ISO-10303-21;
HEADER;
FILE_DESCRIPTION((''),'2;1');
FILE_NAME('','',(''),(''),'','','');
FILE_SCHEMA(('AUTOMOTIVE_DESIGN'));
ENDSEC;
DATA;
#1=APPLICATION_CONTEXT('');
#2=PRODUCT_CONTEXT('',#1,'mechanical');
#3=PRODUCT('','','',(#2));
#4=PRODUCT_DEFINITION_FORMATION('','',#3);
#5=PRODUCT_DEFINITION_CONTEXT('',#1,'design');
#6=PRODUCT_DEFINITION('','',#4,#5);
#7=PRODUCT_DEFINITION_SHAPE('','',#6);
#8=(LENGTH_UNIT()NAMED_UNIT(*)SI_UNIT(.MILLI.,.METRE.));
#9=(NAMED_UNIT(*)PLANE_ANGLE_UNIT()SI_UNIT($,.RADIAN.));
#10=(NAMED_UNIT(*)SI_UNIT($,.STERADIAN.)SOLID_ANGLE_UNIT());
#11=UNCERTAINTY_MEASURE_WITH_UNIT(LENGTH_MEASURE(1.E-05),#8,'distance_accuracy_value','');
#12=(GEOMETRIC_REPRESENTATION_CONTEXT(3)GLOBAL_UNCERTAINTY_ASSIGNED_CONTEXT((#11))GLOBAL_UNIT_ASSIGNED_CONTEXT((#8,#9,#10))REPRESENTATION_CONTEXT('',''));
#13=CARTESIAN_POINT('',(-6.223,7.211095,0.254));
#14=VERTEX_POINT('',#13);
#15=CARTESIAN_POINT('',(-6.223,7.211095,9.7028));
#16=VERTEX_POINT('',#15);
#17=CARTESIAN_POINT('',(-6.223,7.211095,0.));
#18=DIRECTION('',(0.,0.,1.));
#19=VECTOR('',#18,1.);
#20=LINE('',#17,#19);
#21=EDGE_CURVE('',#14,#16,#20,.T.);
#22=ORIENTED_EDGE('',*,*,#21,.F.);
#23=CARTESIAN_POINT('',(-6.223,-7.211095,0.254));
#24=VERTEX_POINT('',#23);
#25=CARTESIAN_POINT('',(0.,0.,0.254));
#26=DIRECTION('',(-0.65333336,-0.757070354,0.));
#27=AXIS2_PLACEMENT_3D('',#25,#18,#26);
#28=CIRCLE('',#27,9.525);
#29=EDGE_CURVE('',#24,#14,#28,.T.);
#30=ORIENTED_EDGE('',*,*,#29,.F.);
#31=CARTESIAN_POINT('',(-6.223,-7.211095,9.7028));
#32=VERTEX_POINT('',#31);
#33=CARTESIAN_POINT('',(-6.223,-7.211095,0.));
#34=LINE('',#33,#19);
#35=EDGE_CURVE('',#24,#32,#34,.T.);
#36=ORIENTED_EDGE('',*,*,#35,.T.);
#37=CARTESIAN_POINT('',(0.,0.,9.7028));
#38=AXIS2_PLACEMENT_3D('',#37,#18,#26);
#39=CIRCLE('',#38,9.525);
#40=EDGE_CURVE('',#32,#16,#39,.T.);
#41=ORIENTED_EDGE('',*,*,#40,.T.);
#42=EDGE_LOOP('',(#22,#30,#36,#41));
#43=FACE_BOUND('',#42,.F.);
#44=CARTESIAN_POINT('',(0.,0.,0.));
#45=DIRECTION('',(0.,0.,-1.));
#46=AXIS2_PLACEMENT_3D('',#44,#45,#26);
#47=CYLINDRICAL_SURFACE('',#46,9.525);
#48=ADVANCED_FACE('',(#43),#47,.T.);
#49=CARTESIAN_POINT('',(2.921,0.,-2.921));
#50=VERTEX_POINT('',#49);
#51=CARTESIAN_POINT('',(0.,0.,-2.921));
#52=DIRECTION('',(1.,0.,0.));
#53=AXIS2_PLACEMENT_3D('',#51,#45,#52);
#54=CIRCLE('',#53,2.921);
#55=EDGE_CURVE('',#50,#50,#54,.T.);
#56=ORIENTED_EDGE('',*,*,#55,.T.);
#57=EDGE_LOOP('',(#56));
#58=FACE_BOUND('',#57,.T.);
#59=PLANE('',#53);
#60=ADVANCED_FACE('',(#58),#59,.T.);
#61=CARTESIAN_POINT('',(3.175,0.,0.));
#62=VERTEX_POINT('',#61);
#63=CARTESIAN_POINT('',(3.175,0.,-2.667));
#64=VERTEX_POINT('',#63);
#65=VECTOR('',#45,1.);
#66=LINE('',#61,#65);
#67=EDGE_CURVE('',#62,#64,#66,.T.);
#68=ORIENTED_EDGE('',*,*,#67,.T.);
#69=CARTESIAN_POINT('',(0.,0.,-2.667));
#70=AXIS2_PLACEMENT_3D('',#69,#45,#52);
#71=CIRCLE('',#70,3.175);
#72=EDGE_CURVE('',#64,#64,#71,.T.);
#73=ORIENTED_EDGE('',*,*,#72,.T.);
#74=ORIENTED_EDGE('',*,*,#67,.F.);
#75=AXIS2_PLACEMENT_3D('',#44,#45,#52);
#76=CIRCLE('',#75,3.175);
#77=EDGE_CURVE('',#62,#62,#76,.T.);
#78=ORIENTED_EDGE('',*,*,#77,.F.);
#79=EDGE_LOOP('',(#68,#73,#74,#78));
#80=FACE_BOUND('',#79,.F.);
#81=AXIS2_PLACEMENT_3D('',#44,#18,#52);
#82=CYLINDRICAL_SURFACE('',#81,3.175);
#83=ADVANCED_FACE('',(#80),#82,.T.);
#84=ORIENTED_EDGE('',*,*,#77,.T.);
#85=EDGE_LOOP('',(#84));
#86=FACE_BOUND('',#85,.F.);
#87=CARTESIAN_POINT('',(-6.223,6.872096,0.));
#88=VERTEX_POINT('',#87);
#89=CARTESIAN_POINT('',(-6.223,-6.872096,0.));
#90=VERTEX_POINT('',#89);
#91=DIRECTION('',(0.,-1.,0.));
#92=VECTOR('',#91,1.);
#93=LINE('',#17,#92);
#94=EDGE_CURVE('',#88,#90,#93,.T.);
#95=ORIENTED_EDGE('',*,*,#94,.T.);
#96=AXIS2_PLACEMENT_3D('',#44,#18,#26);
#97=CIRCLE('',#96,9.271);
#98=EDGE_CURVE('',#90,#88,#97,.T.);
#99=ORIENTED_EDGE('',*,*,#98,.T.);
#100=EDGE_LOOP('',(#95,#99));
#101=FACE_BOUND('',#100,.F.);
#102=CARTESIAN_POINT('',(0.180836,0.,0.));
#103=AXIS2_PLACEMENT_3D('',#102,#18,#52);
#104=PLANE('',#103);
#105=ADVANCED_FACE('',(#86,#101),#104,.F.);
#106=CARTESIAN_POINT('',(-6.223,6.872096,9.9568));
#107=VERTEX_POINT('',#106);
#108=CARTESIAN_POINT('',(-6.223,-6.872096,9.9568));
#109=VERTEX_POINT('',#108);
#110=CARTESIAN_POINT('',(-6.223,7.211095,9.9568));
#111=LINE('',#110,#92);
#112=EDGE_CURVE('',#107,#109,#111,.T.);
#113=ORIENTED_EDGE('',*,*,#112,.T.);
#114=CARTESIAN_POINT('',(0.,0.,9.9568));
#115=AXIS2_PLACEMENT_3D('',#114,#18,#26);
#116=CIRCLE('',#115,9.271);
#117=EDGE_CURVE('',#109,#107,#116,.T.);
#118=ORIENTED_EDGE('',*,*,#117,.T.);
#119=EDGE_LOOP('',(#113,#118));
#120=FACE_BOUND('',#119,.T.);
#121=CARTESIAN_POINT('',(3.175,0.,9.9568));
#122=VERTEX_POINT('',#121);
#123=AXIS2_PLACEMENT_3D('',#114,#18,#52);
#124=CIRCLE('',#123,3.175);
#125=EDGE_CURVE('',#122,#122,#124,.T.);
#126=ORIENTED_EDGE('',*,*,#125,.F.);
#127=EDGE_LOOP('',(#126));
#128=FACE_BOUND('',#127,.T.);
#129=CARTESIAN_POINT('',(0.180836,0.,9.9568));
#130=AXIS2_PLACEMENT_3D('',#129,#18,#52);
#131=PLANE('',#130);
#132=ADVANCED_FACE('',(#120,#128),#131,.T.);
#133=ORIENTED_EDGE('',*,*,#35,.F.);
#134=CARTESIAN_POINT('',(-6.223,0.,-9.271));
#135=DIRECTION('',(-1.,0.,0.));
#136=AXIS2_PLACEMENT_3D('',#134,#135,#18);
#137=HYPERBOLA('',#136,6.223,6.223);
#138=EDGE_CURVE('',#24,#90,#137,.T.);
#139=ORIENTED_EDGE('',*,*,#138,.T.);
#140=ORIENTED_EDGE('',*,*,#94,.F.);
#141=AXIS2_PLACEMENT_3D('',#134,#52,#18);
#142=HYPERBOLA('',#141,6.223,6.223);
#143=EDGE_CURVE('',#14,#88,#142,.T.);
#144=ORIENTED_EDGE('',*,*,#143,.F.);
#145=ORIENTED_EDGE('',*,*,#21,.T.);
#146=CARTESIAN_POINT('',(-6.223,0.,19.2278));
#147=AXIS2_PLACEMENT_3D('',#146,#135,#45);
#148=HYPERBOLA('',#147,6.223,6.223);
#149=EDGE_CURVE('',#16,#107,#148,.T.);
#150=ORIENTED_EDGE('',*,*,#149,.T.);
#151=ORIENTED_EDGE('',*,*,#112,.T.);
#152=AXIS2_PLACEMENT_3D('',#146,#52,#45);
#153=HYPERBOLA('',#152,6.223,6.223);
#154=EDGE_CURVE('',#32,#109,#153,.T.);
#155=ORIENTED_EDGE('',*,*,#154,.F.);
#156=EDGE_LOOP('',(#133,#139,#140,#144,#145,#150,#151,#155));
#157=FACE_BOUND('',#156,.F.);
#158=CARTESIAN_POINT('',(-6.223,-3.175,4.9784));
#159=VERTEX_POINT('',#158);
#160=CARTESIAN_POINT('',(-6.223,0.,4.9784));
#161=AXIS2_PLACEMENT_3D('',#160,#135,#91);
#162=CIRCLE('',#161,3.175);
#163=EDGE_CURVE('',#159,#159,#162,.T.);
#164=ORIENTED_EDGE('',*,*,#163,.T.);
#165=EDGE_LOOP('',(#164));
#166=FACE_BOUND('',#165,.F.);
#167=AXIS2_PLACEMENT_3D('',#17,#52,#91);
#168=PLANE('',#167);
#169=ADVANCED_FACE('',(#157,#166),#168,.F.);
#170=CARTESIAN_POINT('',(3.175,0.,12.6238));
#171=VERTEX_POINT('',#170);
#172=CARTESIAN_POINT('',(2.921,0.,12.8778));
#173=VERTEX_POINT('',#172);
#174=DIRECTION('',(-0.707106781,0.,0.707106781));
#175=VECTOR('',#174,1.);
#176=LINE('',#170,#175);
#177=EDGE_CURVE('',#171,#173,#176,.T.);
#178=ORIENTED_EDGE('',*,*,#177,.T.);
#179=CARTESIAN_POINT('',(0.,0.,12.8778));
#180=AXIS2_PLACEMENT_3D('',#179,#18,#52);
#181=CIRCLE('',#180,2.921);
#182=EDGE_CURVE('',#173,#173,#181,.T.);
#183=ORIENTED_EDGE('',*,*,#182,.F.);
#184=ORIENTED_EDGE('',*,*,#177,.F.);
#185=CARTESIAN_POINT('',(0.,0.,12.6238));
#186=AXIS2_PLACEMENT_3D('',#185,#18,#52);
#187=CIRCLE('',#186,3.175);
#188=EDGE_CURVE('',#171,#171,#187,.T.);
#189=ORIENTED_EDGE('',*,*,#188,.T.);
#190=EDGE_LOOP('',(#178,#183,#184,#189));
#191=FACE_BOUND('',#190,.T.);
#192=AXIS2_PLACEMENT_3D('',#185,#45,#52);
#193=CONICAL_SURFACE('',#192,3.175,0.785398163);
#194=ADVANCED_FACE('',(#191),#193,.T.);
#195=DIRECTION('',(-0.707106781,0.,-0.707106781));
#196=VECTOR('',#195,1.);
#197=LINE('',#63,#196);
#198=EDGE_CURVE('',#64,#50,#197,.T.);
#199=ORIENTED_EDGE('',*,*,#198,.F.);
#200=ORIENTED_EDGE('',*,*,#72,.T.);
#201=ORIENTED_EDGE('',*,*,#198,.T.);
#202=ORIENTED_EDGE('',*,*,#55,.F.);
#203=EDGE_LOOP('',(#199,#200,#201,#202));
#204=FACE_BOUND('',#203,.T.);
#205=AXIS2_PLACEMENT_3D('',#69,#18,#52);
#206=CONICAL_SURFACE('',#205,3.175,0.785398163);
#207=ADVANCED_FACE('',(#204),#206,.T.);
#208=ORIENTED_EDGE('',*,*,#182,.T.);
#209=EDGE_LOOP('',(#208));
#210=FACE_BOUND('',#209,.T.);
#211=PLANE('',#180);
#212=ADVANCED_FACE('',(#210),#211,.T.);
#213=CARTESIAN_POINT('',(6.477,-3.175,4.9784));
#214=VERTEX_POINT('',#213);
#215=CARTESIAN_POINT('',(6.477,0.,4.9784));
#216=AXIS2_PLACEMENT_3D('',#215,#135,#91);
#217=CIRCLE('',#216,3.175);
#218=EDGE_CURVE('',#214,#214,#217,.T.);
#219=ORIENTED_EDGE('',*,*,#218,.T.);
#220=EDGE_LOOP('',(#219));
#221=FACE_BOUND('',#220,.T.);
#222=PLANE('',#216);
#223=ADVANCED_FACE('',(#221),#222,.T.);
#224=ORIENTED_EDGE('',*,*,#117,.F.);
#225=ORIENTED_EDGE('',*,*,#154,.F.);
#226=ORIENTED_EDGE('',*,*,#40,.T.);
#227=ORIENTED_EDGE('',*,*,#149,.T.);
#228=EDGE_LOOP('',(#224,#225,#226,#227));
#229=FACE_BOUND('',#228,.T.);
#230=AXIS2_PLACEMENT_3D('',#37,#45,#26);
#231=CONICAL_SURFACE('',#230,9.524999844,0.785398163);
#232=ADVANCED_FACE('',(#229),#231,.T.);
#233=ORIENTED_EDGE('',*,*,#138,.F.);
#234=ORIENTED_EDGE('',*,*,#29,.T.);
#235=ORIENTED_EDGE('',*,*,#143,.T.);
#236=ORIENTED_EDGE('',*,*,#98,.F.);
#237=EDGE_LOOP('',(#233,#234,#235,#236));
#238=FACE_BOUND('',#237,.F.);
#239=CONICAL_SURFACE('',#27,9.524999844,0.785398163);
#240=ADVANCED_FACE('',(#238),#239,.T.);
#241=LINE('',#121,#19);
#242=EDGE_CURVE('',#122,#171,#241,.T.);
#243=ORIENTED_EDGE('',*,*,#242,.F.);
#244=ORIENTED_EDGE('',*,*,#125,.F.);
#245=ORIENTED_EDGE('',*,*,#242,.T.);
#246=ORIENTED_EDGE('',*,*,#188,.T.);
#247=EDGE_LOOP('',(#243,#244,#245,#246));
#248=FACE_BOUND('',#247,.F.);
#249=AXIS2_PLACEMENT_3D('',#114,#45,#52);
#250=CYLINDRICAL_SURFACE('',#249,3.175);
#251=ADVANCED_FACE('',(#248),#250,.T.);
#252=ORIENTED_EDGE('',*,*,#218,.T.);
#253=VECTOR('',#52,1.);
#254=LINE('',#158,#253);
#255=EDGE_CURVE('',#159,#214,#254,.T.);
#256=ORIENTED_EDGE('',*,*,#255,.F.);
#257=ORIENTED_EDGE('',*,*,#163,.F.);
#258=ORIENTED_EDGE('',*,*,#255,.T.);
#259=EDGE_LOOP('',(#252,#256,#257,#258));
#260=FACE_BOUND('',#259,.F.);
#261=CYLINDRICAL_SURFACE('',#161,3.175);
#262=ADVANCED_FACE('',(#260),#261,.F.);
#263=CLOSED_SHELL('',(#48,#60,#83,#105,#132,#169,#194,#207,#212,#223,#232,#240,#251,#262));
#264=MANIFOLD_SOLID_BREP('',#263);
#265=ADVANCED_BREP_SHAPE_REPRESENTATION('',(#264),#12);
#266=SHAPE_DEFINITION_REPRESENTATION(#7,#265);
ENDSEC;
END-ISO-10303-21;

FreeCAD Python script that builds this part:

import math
import FreeCAD as App
import Part
import Sketcher

V = App.Vector
Q = App.Units.Quantity


def edges_at(feature, points):
    """Names of the edges that pass closest to the given points."""
    edges = feature.Shape.Edges
    near = lambda p: min(range(len(edges)), key=lambda i: edges[i].distToShape(Part.Vertex(*p))[0])
    return sorted({f"Edge{near(p) + 1}" for p in points})

doc = App.newDocument("Part")
body = doc.addObject("PartDesign::Body", "Body")

# Sketch on XY plane
sketch1 = doc.addObject("Sketcher::SketchObject", "Sketch")
body.addObject(sketch1)
sketch1.AttachmentSupport = (doc.XY_Plane, [""])
sketch1.MapMode = "FlatFace"
sketch1.addGeometry(Part.LineSegment(V(-6.223, 7.211095, 0), V(-6.223, -7.211095, 0)), False)
sketch1.addGeometry(Part.ArcOfCircle(Part.Circle(V(0, 0, 0), V(0, 0, 1), 9.525), math.radians(-130.793397), math.radians(130.793397)), False)
sketch1.addConstraint(Sketcher.Constraint("Coincident", 0, 1, 1, 2))
sketch1.addConstraint(Sketcher.Constraint("Coincident", 1, 1, 0, 2))
sketch1.addConstraint(Sketcher.Constraint("Vertical", 0))
sketch1.addConstraint(Sketcher.Constraint("Coincident", 1, 3, -1, 1))
sketch1.addConstraint(Sketcher.Constraint("Radius", 1, Q("0.375 in")))
sketch1.addConstraint(Sketcher.Constraint("DistanceX", 0, 1, -1, 1, Q("0.245 in")))
pad1 = doc.addObject("PartDesign::Pad", "Pad")
body.addObject(pad1)
pad1.Profile = sketch1
pad1.Length = Q("0.392 in")

# Sketch on XY plane
sketch2 = doc.addObject("Sketcher::SketchObject", "Sketch001")
body.addObject(sketch2)
sketch2.AttachmentSupport = (doc.XY_Plane, [""])
sketch2.MapMode = "FlatFace"
sketch2.addGeometry(Part.Circle(V(0, 0, 0), V(0, 0, 1), 3.175), False)
sketch2.addConstraint(Sketcher.Constraint("Coincident", 0, 3, -1, 1))
sketch2.addConstraint(Sketcher.Constraint("Diameter", 0, Q("0.25 in")))
pad2 = doc.addObject("PartDesign::Pad", "Pad001")
body.addObject(pad2)
pad2.Profile = sketch2
pad2.Length = Q("0.115 in")
pad2.Reversed = True

# Sketch on XY plane
sketch3 = doc.addObject("Sketcher::SketchObject", "Sketch002")
body.addObject(sketch3)
sketch3.AttachmentSupport = (doc.XY_Plane, [""])
sketch3.MapMode = "FlatFace"
sketch3.AttachmentOffset = App.Placement(V(0, 0, 0.392 * 25.4), App.Rotation())
sketch3.addGeometry(Part.Circle(V(0, 0, 0), V(0, 0, 1), 3.175), False)
sketch3.addConstraint(Sketcher.Constraint("Coincident", 0, 3, -1, 1))
sketch3.addConstraint(Sketcher.Constraint("Diameter", 0, Q("0.25 in")))
pad3 = doc.addObject("PartDesign::Pad", "Pad002")
body.addObject(pad3)
pad3.Profile = sketch3
pad3.Length = Q("0.115 in")

# Sketch on YZ plane
sketch4 = doc.addObject("Sketcher::SketchObject", "Sketch003")
body.addObject(sketch4)
sketch4.AttachmentSupport = (doc.YZ_Plane, [""])
sketch4.MapMode = "FlatFace"
sketch4.AttachmentOffset = App.Placement(V(0, 0, -0.245 * 25.4), App.Rotation())
sketch4.addGeometry(Part.Circle(V(0, 4.9784, 0), V(0, 0, 1), 3.175), False)
sketch4.addConstraint(Sketcher.Constraint("PointOnObject", 0, 3, -2))
sketch4.addConstraint(Sketcher.Constraint("Diameter", 0, Q("0.25 in")))
sketch4.addConstraint(Sketcher.Constraint("DistanceY", -1, 1, 0, 3, Q("0.196 in")))
pocket1 = doc.addObject("PartDesign::Pocket", "Pocket")
body.addObject(pocket1)
pocket1.Profile = sketch4
pocket1.Length = Q("0.5 in")
pocket1.Reversed = True
doc.recompute()

chamfer = doc.addObject("PartDesign::Chamfer", "Chamfer")
body.addObject(chamfer)
chamfer.Base = (pocket1, edges_at(pocket1, [
    (-3.175, 0, -2.921),
    (9.525, 0, 9.957),
    (9.525, 0, 0),
    (-3.175, 0, 12.878),
]))
chamfer.Size = Q("0.01 in")

doc.recompute()
